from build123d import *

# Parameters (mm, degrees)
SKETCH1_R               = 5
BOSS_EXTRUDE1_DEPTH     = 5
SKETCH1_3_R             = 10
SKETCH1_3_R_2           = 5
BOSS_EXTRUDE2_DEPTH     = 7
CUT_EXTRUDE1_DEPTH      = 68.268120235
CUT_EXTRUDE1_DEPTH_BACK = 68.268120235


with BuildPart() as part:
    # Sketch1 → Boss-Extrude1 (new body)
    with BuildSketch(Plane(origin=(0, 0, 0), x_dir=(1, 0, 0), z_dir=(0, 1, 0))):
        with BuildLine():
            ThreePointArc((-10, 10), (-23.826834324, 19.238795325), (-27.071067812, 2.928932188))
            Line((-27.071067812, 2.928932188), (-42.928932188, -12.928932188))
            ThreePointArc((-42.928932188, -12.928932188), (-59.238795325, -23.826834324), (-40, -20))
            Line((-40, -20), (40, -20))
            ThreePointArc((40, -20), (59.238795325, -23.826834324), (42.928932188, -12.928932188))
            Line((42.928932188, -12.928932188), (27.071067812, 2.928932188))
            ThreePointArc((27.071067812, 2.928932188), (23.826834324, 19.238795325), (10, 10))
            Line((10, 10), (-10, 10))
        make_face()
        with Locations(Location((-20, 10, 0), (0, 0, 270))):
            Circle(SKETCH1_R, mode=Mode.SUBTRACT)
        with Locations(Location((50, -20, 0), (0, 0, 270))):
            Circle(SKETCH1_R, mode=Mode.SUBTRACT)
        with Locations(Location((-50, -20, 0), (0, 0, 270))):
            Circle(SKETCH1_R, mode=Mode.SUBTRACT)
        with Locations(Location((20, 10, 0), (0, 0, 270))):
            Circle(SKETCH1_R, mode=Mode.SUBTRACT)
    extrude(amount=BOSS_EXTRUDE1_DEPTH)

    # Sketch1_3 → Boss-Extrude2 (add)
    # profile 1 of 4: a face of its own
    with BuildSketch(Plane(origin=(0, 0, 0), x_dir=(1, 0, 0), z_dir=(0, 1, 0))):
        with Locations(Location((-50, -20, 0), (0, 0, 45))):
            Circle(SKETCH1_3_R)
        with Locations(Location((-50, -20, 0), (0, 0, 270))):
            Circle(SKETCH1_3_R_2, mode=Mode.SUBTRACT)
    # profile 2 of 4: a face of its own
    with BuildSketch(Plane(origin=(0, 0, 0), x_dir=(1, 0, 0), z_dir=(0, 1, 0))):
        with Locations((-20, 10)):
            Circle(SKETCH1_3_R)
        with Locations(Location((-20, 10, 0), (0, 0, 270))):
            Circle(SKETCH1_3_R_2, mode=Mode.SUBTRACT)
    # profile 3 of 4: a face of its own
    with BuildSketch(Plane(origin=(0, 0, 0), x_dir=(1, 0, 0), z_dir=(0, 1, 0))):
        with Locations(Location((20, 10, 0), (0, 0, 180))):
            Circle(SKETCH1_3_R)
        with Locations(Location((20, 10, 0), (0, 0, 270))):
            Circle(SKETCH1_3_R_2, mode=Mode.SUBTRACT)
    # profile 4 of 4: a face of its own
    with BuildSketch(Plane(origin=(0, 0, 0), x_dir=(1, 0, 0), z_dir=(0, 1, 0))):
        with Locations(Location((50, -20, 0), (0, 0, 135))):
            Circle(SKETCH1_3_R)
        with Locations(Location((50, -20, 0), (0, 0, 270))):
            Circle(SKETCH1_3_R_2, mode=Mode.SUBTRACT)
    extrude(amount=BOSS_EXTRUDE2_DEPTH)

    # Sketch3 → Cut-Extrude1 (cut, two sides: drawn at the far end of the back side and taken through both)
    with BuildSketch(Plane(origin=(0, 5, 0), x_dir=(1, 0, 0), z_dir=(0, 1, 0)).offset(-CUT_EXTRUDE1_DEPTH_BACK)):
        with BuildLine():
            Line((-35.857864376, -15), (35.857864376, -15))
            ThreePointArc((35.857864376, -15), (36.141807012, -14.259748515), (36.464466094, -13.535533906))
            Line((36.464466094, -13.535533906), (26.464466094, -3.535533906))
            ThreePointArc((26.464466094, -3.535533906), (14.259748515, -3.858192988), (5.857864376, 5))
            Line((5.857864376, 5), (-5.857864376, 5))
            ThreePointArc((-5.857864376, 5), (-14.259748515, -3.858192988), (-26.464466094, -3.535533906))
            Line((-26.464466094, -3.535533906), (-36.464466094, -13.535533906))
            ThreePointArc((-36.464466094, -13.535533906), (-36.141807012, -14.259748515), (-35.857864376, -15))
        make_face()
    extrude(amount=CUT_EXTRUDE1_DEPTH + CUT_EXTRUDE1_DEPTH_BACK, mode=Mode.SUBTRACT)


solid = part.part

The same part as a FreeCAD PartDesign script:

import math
import FreeCAD as App
import Part
import Sketcher

doc = App.newDocument("Part")
body = doc.addObject("PartDesign::Body", "Body")

# Sketch on XZ plane
sketch1 = body.newObject("Sketcher::SketchObject", "Sketch")
sketch1.AttachmentSupport = (doc.getObject("XZ_Plane"), [""])
sketch1.MapMode = "FlatFace"
sketch1.addGeometry(Part.ArcOfCircle(Part.Circle(App.Vector(-20, -10, 0), App.Vector(0, 0, 1), 10), math.radians(135), math.radians(360)), False)
sketch1.addGeometry(Part.LineSegment(App.Vector(-27, -3, 0), App.Vector(-43, 13, 0)), False)
sketch1.addGeometry(Part.ArcOfCircle(Part.Circle(App.Vector(-50, 20, 0), App.Vector(0, 0, 1), 10), math.radians(0), math.radians(315)), False)
sketch1.addGeometry(Part.LineSegment(App.Vector(-40, 20, 0), App.Vector(40, 20, 0)), False)
sketch1.addGeometry(Part.ArcOfCircle(Part.Circle(App.Vector(50, 20, 0), App.Vector(0, 0, 1), 10), math.radians(-135), math.radians(180)), False)
sketch1.addGeometry(Part.LineSegment(App.Vector(43, 13, 0), App.Vector(27, -3, 0)), False)
sketch1.addGeometry(Part.ArcOfCircle(Part.Circle(App.Vector(20, -10, 0), App.Vector(0, 0, 1), 10), math.radians(180), math.radians(405)), False)
sketch1.addGeometry(Part.LineSegment(App.Vector(10, -10, 0), App.Vector(-10, -10, 0)), False)
sketch1.addGeometry(Part.Circle(App.Vector(-50, 20, 0), App.Vector(0, 0, 1), 5), False)
sketch1.addGeometry(Part.Circle(App.Vector(50, 20, 0), App.Vector(0, 0, 1), 5), False)
sketch1.addGeometry(Part.Circle(App.Vector(-20, -10, 0), App.Vector(0, 0, 1), 5), False)
sketch1.addGeometry(Part.Circle(App.Vector(20, -10, 0), App.Vector(0, 0, 1), 5), False)
sketch1.addConstraint(Sketcher.Constraint("Coincident", 0, 1, 1, 1))
sketch1.addConstraint(Sketcher.Constraint("Coincident", 1, 2, 2, 2))
sketch1.addConstraint(Sketcher.Constraint("Coincident", 2, 1, 3, 1))
sketch1.addConstraint(Sketcher.Constraint("Coincident", 3, 2, 4, 2))
sketch1.addConstraint(Sketcher.Constraint("Coincident", 4, 1, 5, 1))
sketch1.addConstraint(Sketcher.Constraint("Coincident", 5, 2, 6, 2))
sketch1.addConstraint(Sketcher.Constraint("Coincident", 6, 1, 7, 1))
sketch1.addConstraint(Sketcher.Constraint("Coincident", 7, 2, 0, 2))
sketch1.addConstraint(Sketcher.Constraint("Horizontal", 3))
sketch1.addConstraint(Sketcher.Constraint("Horizontal", 7))
sketch1.addConstraint(Sketcher.Constraint("Coincident", 8, 3, 2, 3))
sketch1.addConstraint(Sketcher.Constraint("Coincident", 9, 3, 4, 3))
sketch1.addConstraint(Sketcher.Constraint("Coincident", 10, 3, 0, 3))
sketch1.addConstraint(Sketcher.Constraint("Coincident", 11, 3, 6, 3))
sketch1.addConstraint(Sketcher.Constraint("Equal", 0, 2))
sketch1.addConstraint(Sketcher.Constraint("Equal", 2, 4))
sketch1.addConstraint(Sketcher.Constraint("Equal", 4, 6))
sketch1.addConstraint(Sketcher.Constraint("Equal", 8, 9))
sketch1.addConstraint(Sketcher.Constraint("Equal", 9, 10))
sketch1.addConstraint(Sketcher.Constraint("Equal", 10, 11))
sketch1.addConstraint(Sketcher.Constraint("Symmetric", 2, 3, 4, 3, -2))
sketch1.addConstraint(Sketcher.Constraint("Symmetric", 0, 3, 6, 3, -2))
sketch1.addConstraint(Sketcher.Constraint("Perpendicular", 1, 5))
sketch1.addConstraint(Sketcher.Constraint("Horizontal", 9, 3, 2, 1))
sketch1.addConstraint(Sketcher.Constraint("Horizontal", 1, 2, 4, 1))
sketch1.addConstraint(Sketcher.Constraint("Horizontal", 0, 1, 5, 2))
sketch1.addConstraint(Sketcher.Constraint("Horizontal", 11, 3, 6, 1))
sketch1.addConstraint(Sketcher.Constraint("Diameter", 8, 10.0))
sketch1.addConstraint(Sketcher.Constraint("Radius", 0, 10.0))
sketch1.addConstraint(Sketcher.Constraint("DistanceX", 3, 1, 3, 2, 80.0))
sketch1.addConstraint(Sketcher.Constraint("DistanceX", 7, 2, 7, 1, 20.0))
sketch1.addConstraint(Sketcher.Constraint("DistanceY", 0, 3, -1, 1, 10.0))
sketch1.addConstraint(Sketcher.Constraint("DistanceY", -1, 1, 2, 3, 20.0))
sketch1.addConstraint(Sketcher.Constraint("DistanceX", 0, 1, -1, 1, 27.071068))
pad1 = body.newObject("PartDesign::Pad", "Pad")
pad1.Profile = sketch1
pad1.Length = 5
pad1.Reversed = True

# Sketch on XZ plane
sketch2 = body.newObject("Sketcher::SketchObject", "Sketch001")
sketch2.AttachmentSupport = (doc.getObject("XZ_Plane"), [""])
sketch2.MapMode = "FlatFace"
sketch2.addGeometry(Part.Circle(App.Vector(-50, 20, 0), App.Vector(0, 0, 1), 10), False)
sketch2.addGeometry(Part.Circle(App.Vector(-50, 20, 0), App.Vector(0, 0, 1), 5), False)
sketch2.addGeometry(Part.Circle(App.Vector(-20, -10, 0), App.Vector(0, 0, 1), 10), False)
sketch2.addGeometry(Part.Circle(App.Vector(-20, -10, 0), App.Vector(0, 0, 1), 5), False)
sketch2.addGeometry(Part.Circle(App.Vector(20, -10, 0), App.Vector(0, 0, 1), 10), False)
sketch2.addGeometry(Part.Circle(App.Vector(20, -10, 0), App.Vector(0, 0, 1), 5), False)
sketch2.addGeometry(Part.Circle(App.Vector(50, 20, 0), App.Vector(0, 0, 1), 10), False)
sketch2.addGeometry(Part.Circle(App.Vector(50, 20, 0), App.Vector(0, 0, 1), 5), False)
sketch2.addConstraint(Sketcher.Constraint("Coincident", 1, 3, 0, 3))
sketch2.addConstraint(Sketcher.Constraint("Coincident", 3, 3, 2, 3))
sketch2.addConstraint(Sketcher.Constraint("Coincident", 5, 3, 4, 3))
sketch2.addConstraint(Sketcher.Constraint("Coincident", 7, 3, 6, 3))
sketch2.addConstraint(Sketcher.Constraint("Equal", 0, 2))
sketch2.addConstraint(Sketcher.Constraint("Equal", 1, 3))
sketch2.addConstraint(Sketcher.Constraint("Equal", 2, 4))
sketch2.addConstraint(Sketcher.Constraint("Equal", 3, 5))
sketch2.addConstraint(Sketcher.Constraint("Equal", 4, 6))
sketch2.addConstraint(Sketcher.Constraint("Equal", 5, 7))
sketch2.addConstraint(Sketcher.Constraint("Symmetric", 2, 3, 4, 3, -2))
sketch2.addConstraint(Sketcher.Constraint("Symmetric", 0, 3, 6, 3, -2))
sketch2.addConstraint(Sketcher.Constraint("Diameter", 0, 20.0))
sketch2.addConstraint(Sketcher.Constraint("Diameter", 1, 10.0))
sketch2.addConstraint(Sketcher.Constraint("DistanceX", 0, 3, -1, 1, 50.0))
sketch2.addConstraint(Sketcher.Constraint("DistanceY", -1, 1, 0, 3, 20.0))
sketch2.addConstraint(Sketcher.Constraint("DistanceX", 2, 3, -1, 1, 20.0))
sketch2.addConstraint(Sketcher.Constraint("DistanceY", 2, 3, -1, 1, 10.0))
pad2 = body.newObject("PartDesign::Pad", "Pad001")
pad2.Profile = sketch2
pad2.Length = 7
pad2.Reversed = True

# Sketch on XZ plane
sketch3 = body.newObject("Sketcher::SketchObject", "Sketch002")
sketch3.AttachmentSupport = (doc.getObject("XZ_Plane"), [""])
sketch3.MapMode = "FlatFace"
sketch3.AttachmentOffset = App.Placement(App.Vector(0, 0, -5), App.Rotation())
sketch3.addGeometry(Part.LineSegment(App.Vector(-35.9, 15, 0), App.Vector(35.9, 15, 0)), False)
sketch3.addGeometry(Part.ArcOfCircle(Part.Circle(App.Vector(50, 20, 0), App.Vector(0, 0, 1), 15), math.radians(-160.53), math.radians(-154.47)), False)
sketch3.addGeometry(Part.LineSegment(App.Vector(36.5, 13.5, 0), App.Vector(26.5, 3.5, 0)), False)
sketch3.addGeometry(Part.ArcOfCircle(Part.Circle(App.Vector(20, -10, 0), App.Vector(0, 0, 1), 15), math.radians(64), math.radians(161)), False)
sketch3.addGeometry(Part.LineSegment(App.Vector(5.9, -5, 0), App.Vector(-5.9, -5, 0)), False)
sketch3.addGeometry(Part.ArcOfCircle(Part.Circle(App.Vector(-20, -10, 0), App.Vector(0, 0, 1), 15), math.radians(19), math.radians(116)), False)
sketch3.addGeometry(Part.LineSegment(App.Vector(-26.5, 3.5, 0), App.Vector(-36.5, 13.5, 0)), False)
sketch3.addGeometry(Part.ArcOfCircle(Part.Circle(App.Vector(-50, 20, 0), App.Vector(0, 0, 1), 15), math.radians(-25.53), math.radians(-19.47)), False)
sketch3.addConstraint(Sketcher.Constraint("Coincident", 0, 2, 1, 1))
sketch3.addConstraint(Sketcher.Constraint("Coincident", 1, 2, 2, 1))
sketch3.addConstraint(Sketcher.Constraint("Coincident", 2, 2, 3, 1))
sketch3.addConstraint(Sketcher.Constraint("Coincident", 3, 2, 4, 1))
sketch3.addConstraint(Sketcher.Constraint("Coincident", 4, 2, 5, 1))
sketch3.addConstraint(Sketcher.Constraint("Coincident", 5, 2, 6, 1))
sketch3.addConstraint(Sketcher.Constraint("Coincident", 6, 2, 7, 1))
sketch3.addConstraint(Sketcher.Constraint("Coincident", 7, 2, 0, 1))
sketch3.addConstraint(Sketcher.Constraint("Horizontal", 0))
sketch3.addConstraint(Sketcher.Constraint("Horizontal", 4))
sketch3.addConstraint(Sketcher.Constraint("Equal", 1, 3))
sketch3.addConstraint(Sketcher.Constraint("Equal", 3, 5))
sketch3.addConstraint(Sketcher.Constraint("Equal", 5, 7))
sketch3.addConstraint(Sketcher.Constraint("Symmetric", 3, 3, 5, 3, -2))
sketch3.addConstraint(Sketcher.Constraint("Symmetric", 1, 3, 7, 3, -2))
sketch3.addConstraint(Sketcher.Constraint("Perpendicular", 2, 6))
sketch3.addConstraint(Sketcher.Constraint("Horizontal", 2, 2, 5, 2))
sketch3.addConstraint(Sketcher.Constraint("Horizontal", 1, 2, 6, 2))
sketch3.addConstraint(Sketcher.Constraint("Radius", 1, 15.0))
sketch3.addConstraint(Sketcher.Constraint("DistanceX", -1, 1, 1, 3, 50.0))
sketch3.addConstraint(Sketcher.Constraint("DistanceY", -1, 1, 1, 3, 20.0))
sketch3.addConstraint(Sketcher.Constraint("DistanceX", -1, 1, 3, 3, 20.0))
sketch3.addConstraint(Sketcher.Constraint("DistanceY", 3, 3, -1, 1, 10.0))
sketch3.addConstraint(Sketcher.Constraint("DistanceY", -1, 1, 0, 2, 15.0))
sketch3.addConstraint(Sketcher.Constraint("DistanceY", 3, 2, -1, 1, 5.0))
sketch3.addConstraint(Sketcher.Constraint("DistanceX", 2, 2, 1, 2, 10.0))
pocket1 = body.newObject("PartDesign::Pocket", "Pocket")
pocket1.Profile = sketch3
pocket1.Type = "ThroughAll"
pocket1.Midplane = True

doc.recompute()
